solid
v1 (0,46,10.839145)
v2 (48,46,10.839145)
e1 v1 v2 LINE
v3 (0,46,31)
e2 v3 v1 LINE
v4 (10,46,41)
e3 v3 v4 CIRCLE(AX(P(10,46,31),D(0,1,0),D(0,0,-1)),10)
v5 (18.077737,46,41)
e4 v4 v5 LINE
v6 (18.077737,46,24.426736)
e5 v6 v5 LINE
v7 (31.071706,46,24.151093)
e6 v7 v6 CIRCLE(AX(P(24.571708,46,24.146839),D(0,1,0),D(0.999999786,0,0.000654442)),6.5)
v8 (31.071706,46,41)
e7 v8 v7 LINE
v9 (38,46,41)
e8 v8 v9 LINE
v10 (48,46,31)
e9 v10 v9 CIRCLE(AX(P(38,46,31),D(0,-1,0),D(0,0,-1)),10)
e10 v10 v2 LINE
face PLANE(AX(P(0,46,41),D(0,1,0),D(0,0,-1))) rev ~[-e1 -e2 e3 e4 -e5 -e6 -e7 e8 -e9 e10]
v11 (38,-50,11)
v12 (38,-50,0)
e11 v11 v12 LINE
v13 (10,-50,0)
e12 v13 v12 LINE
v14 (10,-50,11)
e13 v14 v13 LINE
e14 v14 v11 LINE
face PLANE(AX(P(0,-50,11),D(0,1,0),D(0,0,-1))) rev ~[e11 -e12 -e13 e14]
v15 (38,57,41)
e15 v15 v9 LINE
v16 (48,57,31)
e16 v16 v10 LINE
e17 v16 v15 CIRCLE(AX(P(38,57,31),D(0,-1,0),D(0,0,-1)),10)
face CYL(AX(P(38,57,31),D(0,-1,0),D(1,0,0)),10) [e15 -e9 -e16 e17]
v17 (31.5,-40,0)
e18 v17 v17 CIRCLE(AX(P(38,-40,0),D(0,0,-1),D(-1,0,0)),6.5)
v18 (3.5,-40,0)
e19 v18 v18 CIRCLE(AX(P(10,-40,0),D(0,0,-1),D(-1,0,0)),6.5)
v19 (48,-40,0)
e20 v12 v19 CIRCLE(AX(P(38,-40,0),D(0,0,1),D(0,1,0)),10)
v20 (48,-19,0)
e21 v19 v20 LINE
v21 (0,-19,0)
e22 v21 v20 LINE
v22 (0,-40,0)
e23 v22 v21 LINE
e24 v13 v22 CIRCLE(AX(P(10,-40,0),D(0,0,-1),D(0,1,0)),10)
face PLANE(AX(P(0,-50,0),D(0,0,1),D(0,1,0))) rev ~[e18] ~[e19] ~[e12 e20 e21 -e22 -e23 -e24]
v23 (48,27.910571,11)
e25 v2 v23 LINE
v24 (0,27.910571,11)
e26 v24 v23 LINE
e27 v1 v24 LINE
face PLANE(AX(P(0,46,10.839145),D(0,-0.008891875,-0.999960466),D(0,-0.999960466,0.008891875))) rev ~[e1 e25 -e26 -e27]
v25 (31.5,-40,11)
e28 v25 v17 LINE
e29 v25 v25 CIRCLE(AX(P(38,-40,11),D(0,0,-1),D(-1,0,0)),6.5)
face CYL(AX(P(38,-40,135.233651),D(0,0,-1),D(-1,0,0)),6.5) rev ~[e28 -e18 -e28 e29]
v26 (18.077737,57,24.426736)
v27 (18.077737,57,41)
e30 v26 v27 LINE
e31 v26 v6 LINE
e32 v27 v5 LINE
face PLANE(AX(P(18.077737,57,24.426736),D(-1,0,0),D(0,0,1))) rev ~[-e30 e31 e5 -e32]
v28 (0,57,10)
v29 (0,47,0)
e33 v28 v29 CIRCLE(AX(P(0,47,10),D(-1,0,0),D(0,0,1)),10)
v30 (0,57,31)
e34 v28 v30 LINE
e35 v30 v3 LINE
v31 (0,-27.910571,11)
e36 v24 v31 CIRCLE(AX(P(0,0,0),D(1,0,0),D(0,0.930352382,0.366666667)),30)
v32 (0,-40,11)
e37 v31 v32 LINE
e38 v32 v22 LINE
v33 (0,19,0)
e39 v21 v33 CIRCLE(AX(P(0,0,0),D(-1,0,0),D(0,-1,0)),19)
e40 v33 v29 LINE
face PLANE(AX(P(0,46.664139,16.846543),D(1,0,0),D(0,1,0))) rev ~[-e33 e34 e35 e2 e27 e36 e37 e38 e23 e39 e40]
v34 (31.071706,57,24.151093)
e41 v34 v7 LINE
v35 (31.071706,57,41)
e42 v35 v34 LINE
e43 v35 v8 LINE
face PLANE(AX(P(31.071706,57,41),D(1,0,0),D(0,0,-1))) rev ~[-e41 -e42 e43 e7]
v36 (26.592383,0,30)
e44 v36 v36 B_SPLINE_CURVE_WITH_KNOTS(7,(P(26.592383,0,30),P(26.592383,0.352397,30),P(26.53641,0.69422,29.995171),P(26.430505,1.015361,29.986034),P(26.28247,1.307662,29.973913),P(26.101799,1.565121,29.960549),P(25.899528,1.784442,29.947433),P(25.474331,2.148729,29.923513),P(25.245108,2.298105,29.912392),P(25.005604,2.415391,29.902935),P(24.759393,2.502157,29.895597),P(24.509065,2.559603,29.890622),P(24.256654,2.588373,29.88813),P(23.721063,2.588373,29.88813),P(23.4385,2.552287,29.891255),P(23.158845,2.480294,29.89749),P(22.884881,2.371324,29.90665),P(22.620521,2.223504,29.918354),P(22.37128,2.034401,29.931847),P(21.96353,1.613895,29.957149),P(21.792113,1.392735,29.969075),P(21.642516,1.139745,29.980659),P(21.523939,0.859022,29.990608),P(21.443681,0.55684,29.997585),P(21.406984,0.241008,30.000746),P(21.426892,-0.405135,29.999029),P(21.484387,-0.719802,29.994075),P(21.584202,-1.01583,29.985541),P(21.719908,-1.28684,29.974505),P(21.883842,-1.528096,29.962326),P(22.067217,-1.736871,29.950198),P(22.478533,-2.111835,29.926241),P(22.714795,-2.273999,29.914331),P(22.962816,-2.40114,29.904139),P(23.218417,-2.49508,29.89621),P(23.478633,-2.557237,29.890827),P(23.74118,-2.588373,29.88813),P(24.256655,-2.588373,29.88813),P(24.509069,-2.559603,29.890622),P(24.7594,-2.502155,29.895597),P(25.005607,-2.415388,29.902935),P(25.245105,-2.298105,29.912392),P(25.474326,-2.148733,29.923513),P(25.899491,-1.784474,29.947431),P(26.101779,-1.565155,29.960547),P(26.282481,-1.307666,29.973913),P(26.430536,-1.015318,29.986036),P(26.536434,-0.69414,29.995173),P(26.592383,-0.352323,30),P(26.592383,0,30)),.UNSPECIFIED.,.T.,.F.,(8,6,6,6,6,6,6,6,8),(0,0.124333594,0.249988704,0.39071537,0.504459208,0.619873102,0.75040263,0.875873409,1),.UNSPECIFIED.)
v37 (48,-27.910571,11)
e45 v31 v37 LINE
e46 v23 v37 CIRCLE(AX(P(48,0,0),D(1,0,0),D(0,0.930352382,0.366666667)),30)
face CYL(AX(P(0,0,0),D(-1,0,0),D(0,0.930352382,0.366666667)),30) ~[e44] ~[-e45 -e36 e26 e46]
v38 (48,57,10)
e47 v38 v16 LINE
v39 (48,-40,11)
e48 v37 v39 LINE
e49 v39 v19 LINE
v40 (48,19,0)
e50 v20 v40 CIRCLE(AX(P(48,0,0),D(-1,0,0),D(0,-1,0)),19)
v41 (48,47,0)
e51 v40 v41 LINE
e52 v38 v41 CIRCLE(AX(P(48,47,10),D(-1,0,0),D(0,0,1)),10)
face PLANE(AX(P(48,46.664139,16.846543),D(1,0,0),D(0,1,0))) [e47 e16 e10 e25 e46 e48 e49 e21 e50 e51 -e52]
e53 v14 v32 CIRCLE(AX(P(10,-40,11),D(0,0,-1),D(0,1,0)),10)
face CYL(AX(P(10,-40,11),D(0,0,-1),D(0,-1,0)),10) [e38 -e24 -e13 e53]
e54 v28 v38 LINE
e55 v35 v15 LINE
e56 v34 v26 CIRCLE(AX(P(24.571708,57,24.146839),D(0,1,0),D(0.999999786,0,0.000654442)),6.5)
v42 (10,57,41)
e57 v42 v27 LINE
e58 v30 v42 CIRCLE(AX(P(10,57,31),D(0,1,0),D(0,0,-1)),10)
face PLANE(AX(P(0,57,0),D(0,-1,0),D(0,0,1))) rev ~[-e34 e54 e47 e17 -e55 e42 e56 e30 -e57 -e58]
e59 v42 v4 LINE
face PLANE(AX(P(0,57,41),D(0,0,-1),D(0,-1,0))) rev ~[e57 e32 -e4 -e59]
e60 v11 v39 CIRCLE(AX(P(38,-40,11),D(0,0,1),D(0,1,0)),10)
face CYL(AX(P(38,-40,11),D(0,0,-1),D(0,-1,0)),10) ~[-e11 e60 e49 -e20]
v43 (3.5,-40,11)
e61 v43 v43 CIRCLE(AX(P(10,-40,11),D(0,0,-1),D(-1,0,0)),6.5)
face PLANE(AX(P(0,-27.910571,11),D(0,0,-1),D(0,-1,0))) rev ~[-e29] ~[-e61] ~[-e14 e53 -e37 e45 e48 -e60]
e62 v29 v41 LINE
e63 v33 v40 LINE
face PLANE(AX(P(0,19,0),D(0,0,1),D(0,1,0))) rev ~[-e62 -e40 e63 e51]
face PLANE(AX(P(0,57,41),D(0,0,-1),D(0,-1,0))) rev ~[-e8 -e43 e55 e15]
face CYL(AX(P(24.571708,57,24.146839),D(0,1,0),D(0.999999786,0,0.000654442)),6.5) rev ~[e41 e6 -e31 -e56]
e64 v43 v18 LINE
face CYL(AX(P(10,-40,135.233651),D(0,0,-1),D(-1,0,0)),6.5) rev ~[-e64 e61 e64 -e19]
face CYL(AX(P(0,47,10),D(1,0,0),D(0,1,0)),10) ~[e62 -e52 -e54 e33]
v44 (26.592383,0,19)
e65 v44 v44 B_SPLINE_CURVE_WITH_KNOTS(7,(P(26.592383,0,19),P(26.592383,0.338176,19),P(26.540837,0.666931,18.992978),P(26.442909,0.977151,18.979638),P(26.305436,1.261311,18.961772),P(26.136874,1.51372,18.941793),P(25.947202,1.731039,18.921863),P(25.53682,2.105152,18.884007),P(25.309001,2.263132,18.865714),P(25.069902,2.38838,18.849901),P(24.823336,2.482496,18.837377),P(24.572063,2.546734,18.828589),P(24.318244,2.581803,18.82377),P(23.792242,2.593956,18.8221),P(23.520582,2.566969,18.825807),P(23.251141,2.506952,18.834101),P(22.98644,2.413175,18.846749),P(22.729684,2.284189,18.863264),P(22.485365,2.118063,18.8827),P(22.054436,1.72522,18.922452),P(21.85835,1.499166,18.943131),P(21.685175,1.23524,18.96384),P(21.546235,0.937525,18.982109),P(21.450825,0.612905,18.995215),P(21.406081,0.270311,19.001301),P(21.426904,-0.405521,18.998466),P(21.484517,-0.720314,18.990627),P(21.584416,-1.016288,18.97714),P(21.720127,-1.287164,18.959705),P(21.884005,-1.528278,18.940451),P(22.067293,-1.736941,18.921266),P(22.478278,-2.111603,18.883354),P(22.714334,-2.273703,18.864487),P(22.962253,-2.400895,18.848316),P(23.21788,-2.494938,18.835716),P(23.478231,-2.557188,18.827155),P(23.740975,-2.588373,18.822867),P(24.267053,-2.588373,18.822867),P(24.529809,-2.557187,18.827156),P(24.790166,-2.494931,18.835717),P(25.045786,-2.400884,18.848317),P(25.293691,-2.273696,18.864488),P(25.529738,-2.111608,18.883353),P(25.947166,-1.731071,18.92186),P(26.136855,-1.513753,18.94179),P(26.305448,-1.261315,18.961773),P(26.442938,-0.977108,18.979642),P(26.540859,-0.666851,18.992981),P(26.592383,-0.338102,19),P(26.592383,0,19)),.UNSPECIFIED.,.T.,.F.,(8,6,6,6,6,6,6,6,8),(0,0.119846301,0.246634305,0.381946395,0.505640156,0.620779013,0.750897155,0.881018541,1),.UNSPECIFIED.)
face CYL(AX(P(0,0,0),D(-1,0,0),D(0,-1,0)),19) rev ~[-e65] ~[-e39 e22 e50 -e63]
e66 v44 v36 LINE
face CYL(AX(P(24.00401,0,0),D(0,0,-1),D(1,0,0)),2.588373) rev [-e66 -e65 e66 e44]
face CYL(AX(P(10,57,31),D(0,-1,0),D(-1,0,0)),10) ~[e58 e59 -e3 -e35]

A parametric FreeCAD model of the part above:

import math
import FreeCAD as App
import Part
import Sketcher

V = App.Vector


def edges_at(feature, points):
    """Names of the edges that pass closest to the given points."""
    edges = feature.Shape.Edges
    near = lambda p: min(range(len(edges)), key=lambda i: edges[i].distToShape(Part.Vertex(*p))[0])
    return sorted({f"Edge{near(p) + 1}" for p in points})

doc = App.newDocument("Part")
body = doc.addObject("PartDesign::Body", "Body")

sketch1 = body.newObject("Sketcher::SketchObject", "Sketch")
sketch1.AttachmentSupport = (doc.getObject("YZ_Plane"), [""])
sketch1.MapMode = "FlatFace"
sketch1.addGeometry(Part.LineSegment(V(57, 0, 0), V(57, 41, 0)), False)
sketch1.addGeometry(Part.LineSegment(V(57, 41, 0), V(46, 41, 0)), False)
sketch1.addGeometry(Part.LineSegment(V(46, 41, 0), V(46, 10.839145, 0)), False)
sketch1.addGeometry(Part.LineSegment(V(46, 10.839145, 0), V(27.910571, 11, 0)), False)
sketch1.addGeometry(Part.ArcOfCircle(Part.Circle(V(0, 0, 0), V(0, 0, 1), 30), math.radians(21.510188), math.radians(158.489812)), False)
sketch1.addGeometry(Part.LineSegment(V(-27.910571, 11, 0), V(-50, 11, 0)), False)
sketch1.addGeometry(Part.LineSegment(V(-50, 11, 0), V(-50, 0, 0)), False)
sketch1.addGeometry(Part.LineSegment(V(-50, 0, 0), V(-19, 0, 0)), False)
sketch1.addGeometry(Part.ArcOfCircle(Part.Circle(V(0, 0, 0), V(0, 0, 1), 19), math.radians(0), math.radians(180)), False)
sketch1.addGeometry(Part.LineSegment(V(19, 0, 0), V(57, 0, 0)), False)
sketch1.addConstraint(Sketcher.Constraint("Coincident", 0, 2, 1, 1))
sketch1.addConstraint(Sketcher.Constraint("Coincident", 1, 2, 2, 1))
sketch1.addConstraint(Sketcher.Constraint("Coincident", 2, 2, 3, 1))
sketch1.addConstraint(Sketcher.Constraint("Coincident", 3, 2, 4, 1))
sketch1.addConstraint(Sketcher.Constraint("Coincident", 4, 2, 5, 1))
sketch1.addConstraint(Sketcher.Constraint("Coincident", 5, 2, 6, 1))
sketch1.addConstraint(Sketcher.Constraint("Coincident", 6, 2, 7, 1))
sketch1.addConstraint(Sketcher.Constraint("Coincident", 7, 2, 8, 2))
sketch1.addConstraint(Sketcher.Constraint("Coincident", 8, 1, 9, 1))
sketch1.addConstraint(Sketcher.Constraint("Coincident", 9, 2, 0, 1))
sketch1.addConstraint(Sketcher.Constraint("Vertical", 0))
sketch1.addConstraint(Sketcher.Constraint("Horizontal", 1))
sketch1.addConstraint(Sketcher.Constraint("Vertical", 2))
sketch1.addConstraint(Sketcher.Constraint("Horizontal", 5))
sketch1.addConstraint(Sketcher.Constraint("Vertical", 6))
sketch1.addConstraint(Sketcher.Constraint("Horizontal", 7))
sketch1.addConstraint(Sketcher.Constraint("Horizontal", 9))
sketch1.addConstraint(Sketcher.Constraint("Coincident", 4, 3, -1, 1))
sketch1.addConstraint(Sketcher.Constraint("Coincident", 8, 3, -1, 1))
sketch1.addConstraint(Sketcher.Constraint("PointOnObject", 6, 2, -1))
sketch1.addConstraint(Sketcher.Constraint("PointOnObject", 8, 1, -1))
sketch1.addConstraint(Sketcher.Constraint("Horizontal", 3, 2, 4, 2))
sketch1.addConstraint(Sketcher.Constraint("Equal", 1, 6))
sketch1.addConstraint(Sketcher.Constraint("Radius", 4, 30.0))
sketch1.addConstraint(Sketcher.Constraint("Radius", 8, 19.0))
sketch1.addConstraint(Sketcher.Constraint("DistanceX", 1, 2, 1, 1, 11.0))
sketch1.addConstraint(Sketcher.Constraint("DistanceX", 7, 1, 7, 2, 31.0))
sketch1.addConstraint(Sketcher.Constraint("DistanceX", 9, 1, 9, 2, 38.0))
sketch1.addConstraint(Sketcher.Constraint("DistanceY", 0, 1, 0, 2, 41.0))
sketch1.addConstraint(Sketcher.Constraint("DistanceY", 2, 2, 2, 1, 30.160855))
pad1 = body.newObject("PartDesign::Pad", "Pad")
pad1.Profile = sketch1
pad1.Length = 48
doc.recompute()

fillet = body.newObject("PartDesign::Fillet", "Fillet")
fillet.Base = (pad1, edges_at(pad1, [(0, -50, 5.5)]))
fillet.Radius = 10
doc.recompute()

fillet2 = body.newObject("PartDesign::Fillet", "Fillet001")
fillet2.Base = (fillet, edges_at(fillet, [
    (48, -50, 5.5),
    (48, 51.5, 41),
    (0, 51.5, 41),
    (24, 57, 0),
]))
fillet2.Radius = 10

sketch2 = body.newObject("Sketcher::SketchObject", "Sketch001")
sketch2.AttachmentSupport = (doc.getObject("XY_Plane"), [""])
sketch2.MapMode = "FlatFace"
sketch2.AttachmentOffset = App.Placement(V(0, 0, 11), App.Rotation())
sketch2.addGeometry(Part.Circle(V(38, -40, 0), V(0, 0, 1), 6.5), False)
sketch2.addGeometry(Part.Circle(V(10, -40, 0), V(0, 0, 1), 6.5), False)
sketch2.addConstraint(Sketcher.Constraint("Equal", 0, 1))
sketch2.addConstraint(Sketcher.Constraint("Horizontal", 0, 3, 1, 3))
sketch2.addConstraint(Sketcher.Constraint("Diameter", 0, 13.0))
sketch2.addConstraint(Sketcher.Constraint("DistanceX", -1, 1, 0, 3, 38.0))
sketch2.addConstraint(Sketcher.Constraint("DistanceY", 0, 3, -1, 1, 40.0))
sketch2.addConstraint(Sketcher.Constraint("DistanceX", -1, 1, 1, 3, 10.0))
doc.recompute()
hole = body.newObject("PartDesign::Hole", "Hole")
hole.Profile = sketch2
hole.ThreadType = "None"
hole.Diameter = 13
hole.DepthType = "ThroughAll"

sketch3 = body.newObject("Sketcher::SketchObject", "Sketch002")
sketch3.AttachmentSupport = (doc.getObject("XZ_Plane"), [""])
sketch3.MapMode = "FlatFace"
sketch3.AttachmentOffset = App.Placement(V(0, 0, -57), App.Rotation())
sketch3.addGeometry(Part.LineSegment(V(31.071706, 41, 0), V(31.071706, 24.151093, 0)), False)
sketch3.addGeometry(Part.ArcOfCircle(Part.Circle(V(24.571708, 24.146839, 0), V(0, 0, 1), 6.5), math.radians(177.532021), math.radians(360.037497)), False)
sketch3.addGeometry(Part.LineSegment(V(18.077737, 24.426736, 0), V(18.077737, 41, 0)), False)
sketch3.addGeometry(Part.LineSegment(V(18.077737, 41, 0), V(31.071706, 41, 0)), False)
sketch3.addConstraint(Sketcher.Constraint("Coincident", 0, 2, 1, 2))
sketch3.addConstraint(Sketcher.Constraint("Coincident", 1, 1, 2, 1))
sketch3.addConstraint(Sketcher.Constraint("Coincident", 2, 2, 3, 1))
sketch3.addConstraint(Sketcher.Constraint("Coincident", 3, 2, 0, 1))
sketch3.addConstraint(Sketcher.Constraint("Vertical", 0))
sketch3.addConstraint(Sketcher.Constraint("Vertical", 2))
sketch3.addConstraint(Sketcher.Constraint("Horizontal", 3))
sketch3.addConstraint(Sketcher.Constraint("Radius", 1, 6.5))
sketch3.addConstraint(Sketcher.Constraint("DistanceY", -1, 1, 2, 2, 41.0))
sketch3.addConstraint(Sketcher.Constraint("DistanceX", 3, 1, 3, 2, 12.993969))
sketch3.addConstraint(Sketcher.Constraint("DistanceY", 0, 2, 0, 1, 16.848907))
sketch3.addConstraint(Sketcher.Constraint("DistanceY", 2, 1, 2, 2, 16.573264))
sketch3.addConstraint(Sketcher.Constraint("DistanceX", -1, 1, 1, 3, 24.571708))
pocket1 = body.newObject("PartDesign::Pocket", "Pocket")
pocket1.Profile = sketch3
pocket1.Length = 25
pocket1.Reversed = True

sketch4 = body.newObject("Sketcher::SketchObject", "Sketch003")
sketch4.AttachmentSupport = (doc.getObject("XY_Plane"), [""])
sketch4.MapMode = "FlatFace"
sketch4.addGeometry(Part.Circle(V(23.187462, 0, 0), V(0, 0, 1), 2.5), False)
sketch4.addConstraint(Sketcher.Constraint("PointOnObject", 0, 3, -1))
sketch4.addConstraint(Sketcher.Constraint("Diameter", 0, 5.0))
sketch4.addConstraint(Sketcher.Constraint("DistanceX", -1, 1, 0, 3, 23.187462))
pocket2 = body.newObject("PartDesign::Pocket", "Pocket001")
pocket2.Profile = sketch4
pocket2.Length = 25

sketch5 = body.newObject("Sketcher::SketchObject", "Sketch004")
sketch5.AttachmentSupport = (doc.getObject("XY_Plane"), [""])
sketch5.MapMode = "FlatFace"
sketch5.addGeometry(Part.Circle(V(24.00401, 0, 0), V(0, 0, 1), 2.588373), False)
sketch5.addConstraint(Sketcher.Constraint("PointOnObject", 0, 3, -1))
sketch5.addConstraint(Sketcher.Constraint("Diameter", 0, 5.176746))
sketch5.addConstraint(Sketcher.Constraint("DistanceX", -1, 1, 0, 3, 24.00401))
pocket3 = body.newObject("PartDesign::Pocket", "Pocket002")
pocket3.Profile = sketch5
pocket3.Length = 35
pocket3.Reversed = True

doc.recompute()
